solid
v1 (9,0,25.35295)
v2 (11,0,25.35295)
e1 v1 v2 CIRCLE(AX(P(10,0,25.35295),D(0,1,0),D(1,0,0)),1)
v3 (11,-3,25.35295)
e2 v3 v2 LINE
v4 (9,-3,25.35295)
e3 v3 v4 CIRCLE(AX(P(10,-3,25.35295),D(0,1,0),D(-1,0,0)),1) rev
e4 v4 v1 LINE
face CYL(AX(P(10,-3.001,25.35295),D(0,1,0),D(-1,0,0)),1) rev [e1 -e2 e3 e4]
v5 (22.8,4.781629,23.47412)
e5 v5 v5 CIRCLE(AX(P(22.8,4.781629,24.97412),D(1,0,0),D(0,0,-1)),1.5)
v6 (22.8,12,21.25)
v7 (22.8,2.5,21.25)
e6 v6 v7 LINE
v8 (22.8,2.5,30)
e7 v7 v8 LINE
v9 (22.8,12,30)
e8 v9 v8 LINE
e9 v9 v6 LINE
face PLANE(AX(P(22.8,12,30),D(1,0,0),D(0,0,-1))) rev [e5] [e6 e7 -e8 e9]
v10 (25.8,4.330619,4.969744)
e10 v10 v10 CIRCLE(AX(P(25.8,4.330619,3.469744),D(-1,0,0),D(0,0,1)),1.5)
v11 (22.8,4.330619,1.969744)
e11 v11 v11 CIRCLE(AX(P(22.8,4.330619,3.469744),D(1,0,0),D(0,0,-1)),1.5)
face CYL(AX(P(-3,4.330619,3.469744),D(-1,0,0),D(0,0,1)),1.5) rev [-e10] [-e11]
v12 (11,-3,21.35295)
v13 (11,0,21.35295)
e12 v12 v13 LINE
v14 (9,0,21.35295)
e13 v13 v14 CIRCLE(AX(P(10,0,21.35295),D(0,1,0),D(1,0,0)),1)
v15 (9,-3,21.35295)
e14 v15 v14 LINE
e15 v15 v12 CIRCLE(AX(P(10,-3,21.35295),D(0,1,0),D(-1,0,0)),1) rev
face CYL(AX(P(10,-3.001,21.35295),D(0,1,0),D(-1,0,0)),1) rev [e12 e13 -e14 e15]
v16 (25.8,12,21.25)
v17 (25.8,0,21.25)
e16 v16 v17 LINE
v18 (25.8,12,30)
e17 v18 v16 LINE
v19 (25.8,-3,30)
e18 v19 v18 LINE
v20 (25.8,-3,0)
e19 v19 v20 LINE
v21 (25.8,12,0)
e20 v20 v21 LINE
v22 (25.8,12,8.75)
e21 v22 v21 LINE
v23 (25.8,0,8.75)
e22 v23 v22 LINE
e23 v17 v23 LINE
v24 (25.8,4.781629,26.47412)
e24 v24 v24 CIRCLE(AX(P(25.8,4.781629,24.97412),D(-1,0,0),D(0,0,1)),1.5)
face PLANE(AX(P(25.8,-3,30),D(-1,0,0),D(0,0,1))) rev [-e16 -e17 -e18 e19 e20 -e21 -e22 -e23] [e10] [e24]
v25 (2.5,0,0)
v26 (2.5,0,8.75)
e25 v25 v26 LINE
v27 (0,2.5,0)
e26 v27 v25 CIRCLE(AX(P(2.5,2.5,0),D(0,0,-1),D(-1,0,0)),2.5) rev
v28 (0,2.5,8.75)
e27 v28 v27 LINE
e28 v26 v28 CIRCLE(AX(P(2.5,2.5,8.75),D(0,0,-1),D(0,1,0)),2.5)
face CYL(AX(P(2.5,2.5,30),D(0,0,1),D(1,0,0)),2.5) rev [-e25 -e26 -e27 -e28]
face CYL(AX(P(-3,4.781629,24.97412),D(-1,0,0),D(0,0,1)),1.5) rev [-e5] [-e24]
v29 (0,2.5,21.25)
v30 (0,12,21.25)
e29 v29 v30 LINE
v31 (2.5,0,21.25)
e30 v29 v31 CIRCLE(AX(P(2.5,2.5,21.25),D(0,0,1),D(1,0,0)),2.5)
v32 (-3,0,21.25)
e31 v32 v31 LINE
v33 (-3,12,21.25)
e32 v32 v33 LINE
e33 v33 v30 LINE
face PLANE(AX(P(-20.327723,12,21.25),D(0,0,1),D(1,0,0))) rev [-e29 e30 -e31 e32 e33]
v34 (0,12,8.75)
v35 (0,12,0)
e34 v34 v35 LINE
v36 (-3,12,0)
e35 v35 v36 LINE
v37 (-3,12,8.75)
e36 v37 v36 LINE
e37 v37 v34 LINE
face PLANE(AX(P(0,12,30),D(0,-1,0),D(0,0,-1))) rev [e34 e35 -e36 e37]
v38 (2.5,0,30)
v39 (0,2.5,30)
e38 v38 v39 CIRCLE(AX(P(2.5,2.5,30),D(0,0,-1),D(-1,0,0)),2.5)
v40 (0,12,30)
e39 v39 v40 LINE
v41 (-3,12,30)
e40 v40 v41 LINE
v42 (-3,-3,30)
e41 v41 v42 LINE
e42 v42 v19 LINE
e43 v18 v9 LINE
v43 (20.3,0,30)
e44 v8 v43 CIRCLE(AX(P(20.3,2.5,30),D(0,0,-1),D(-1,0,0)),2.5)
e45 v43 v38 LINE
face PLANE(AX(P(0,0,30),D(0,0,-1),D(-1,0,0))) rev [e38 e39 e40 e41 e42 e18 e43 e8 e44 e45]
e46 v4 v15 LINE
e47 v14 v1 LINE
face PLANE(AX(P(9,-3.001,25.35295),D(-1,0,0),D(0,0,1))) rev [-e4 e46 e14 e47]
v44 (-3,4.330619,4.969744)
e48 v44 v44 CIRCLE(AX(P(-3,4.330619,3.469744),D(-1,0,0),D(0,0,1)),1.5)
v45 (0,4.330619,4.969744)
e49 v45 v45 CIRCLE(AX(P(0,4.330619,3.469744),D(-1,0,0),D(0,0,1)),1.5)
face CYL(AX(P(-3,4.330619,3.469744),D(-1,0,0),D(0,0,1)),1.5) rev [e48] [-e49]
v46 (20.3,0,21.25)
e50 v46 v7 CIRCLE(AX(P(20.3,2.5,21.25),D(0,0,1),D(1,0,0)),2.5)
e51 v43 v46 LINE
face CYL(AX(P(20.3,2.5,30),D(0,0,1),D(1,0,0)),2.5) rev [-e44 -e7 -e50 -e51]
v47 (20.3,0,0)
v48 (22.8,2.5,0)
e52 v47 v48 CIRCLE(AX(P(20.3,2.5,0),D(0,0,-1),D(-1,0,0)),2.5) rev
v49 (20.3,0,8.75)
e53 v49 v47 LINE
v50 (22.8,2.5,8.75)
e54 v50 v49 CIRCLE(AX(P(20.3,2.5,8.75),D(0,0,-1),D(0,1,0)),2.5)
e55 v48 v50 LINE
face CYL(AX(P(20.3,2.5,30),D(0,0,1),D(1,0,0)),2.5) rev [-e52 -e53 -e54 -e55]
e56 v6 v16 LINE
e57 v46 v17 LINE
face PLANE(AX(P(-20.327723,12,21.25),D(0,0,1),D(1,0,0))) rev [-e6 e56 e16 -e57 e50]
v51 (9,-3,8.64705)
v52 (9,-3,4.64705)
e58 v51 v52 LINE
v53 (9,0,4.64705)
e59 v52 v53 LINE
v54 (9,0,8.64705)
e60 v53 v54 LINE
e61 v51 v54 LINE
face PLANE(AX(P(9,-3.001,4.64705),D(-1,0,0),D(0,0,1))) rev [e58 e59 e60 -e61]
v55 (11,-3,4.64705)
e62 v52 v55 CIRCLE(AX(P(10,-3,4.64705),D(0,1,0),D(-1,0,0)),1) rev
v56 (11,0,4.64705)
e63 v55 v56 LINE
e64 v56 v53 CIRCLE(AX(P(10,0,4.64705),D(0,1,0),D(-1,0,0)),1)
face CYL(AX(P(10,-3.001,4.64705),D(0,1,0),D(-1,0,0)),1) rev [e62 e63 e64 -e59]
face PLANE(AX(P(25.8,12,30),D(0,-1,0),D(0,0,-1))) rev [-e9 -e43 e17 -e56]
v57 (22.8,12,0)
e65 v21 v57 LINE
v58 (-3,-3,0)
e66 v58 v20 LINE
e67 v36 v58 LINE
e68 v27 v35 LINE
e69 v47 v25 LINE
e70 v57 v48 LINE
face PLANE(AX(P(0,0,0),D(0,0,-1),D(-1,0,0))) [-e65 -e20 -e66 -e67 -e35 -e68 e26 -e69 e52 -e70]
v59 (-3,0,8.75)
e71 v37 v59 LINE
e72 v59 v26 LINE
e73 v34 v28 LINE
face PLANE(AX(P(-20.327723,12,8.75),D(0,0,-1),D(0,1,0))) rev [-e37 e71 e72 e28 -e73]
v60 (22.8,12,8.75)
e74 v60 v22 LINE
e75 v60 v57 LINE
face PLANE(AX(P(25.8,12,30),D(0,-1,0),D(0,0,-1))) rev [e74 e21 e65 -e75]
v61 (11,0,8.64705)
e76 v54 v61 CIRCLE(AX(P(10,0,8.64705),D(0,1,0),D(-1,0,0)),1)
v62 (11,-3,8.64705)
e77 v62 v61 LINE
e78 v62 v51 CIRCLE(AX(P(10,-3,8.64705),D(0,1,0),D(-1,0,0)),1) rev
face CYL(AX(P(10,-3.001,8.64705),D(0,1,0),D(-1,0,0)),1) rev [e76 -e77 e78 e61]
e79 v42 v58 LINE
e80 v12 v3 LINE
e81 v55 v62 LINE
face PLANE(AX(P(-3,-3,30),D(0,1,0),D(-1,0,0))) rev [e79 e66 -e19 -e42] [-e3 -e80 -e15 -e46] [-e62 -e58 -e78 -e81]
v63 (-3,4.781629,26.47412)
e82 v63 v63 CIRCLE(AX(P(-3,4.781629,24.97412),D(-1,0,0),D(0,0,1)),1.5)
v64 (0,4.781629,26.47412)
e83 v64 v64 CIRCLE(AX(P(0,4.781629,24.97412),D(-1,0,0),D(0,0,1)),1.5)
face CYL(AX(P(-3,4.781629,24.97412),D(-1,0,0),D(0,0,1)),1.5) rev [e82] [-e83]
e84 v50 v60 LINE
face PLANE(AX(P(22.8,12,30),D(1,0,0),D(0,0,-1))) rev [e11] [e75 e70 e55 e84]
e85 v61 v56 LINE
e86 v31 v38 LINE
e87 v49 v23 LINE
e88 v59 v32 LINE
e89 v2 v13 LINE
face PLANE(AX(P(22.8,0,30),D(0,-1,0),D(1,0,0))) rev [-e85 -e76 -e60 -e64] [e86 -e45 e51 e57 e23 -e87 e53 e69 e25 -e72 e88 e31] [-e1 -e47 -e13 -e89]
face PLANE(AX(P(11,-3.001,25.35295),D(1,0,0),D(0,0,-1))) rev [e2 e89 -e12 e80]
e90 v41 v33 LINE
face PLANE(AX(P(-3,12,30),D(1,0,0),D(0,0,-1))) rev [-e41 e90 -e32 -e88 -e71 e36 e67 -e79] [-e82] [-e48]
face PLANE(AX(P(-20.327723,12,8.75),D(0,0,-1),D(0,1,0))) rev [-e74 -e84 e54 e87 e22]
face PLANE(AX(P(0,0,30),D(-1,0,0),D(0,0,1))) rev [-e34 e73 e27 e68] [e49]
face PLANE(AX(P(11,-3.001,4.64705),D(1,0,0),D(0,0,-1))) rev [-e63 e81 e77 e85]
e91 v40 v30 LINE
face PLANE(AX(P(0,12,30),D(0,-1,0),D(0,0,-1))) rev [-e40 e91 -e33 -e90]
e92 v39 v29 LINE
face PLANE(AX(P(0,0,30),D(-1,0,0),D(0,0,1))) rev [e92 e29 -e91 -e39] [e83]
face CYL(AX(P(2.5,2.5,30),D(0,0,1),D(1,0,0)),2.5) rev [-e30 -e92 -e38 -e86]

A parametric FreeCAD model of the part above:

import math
import FreeCAD as App
import Part
import Sketcher


def edges_at(feature, points):
    """Names of the edges that pass closest to the given points."""
    edges = feature.Shape.Edges
    near = lambda p: min(range(len(edges)), key=lambda i: edges[i].distToShape(Part.Vertex(*p))[0])
    return sorted({f"Edge{near(p) + 1}" for p in points})


def add_polygon(sketch, points):
    """Adds a closed chain of lines whose ends are joined by coincident constraints."""
    first, n = sketch.GeometryCount, len(points)
    for a, b in zip(points, points[1:] + points[:1]):
        sketch.addGeometry(Part.LineSegment(App.Vector(*a, 0), App.Vector(*b, 0)), False)
    for i in range(n):
        sketch.addConstraint(Sketcher.Constraint("Coincident", first + i, 2, first + (i + 1) % n, 1))

doc = App.newDocument("Part")
body = doc.addObject("PartDesign::Body", "Body")

sketch1 = doc.addObject("Sketcher::SketchObject", "Sketch")
body.addObject(sketch1)
sketch1.AttachmentSupport = (doc.XY_Plane, [""])
sketch1.MapMode = "FlatFace"
add_polygon(sketch1, [(0, 0), (0, 12), (-3, 12), (-3, -3), (25.8, -3), (25.8, 12), (22.8, 12), (22.8, 0)])
sketch1.addConstraint([
    Sketcher.Constraint("Vertical", 0),
    Sketcher.Constraint("Horizontal", 1),
    Sketcher.Constraint("Vertical", 2),
    Sketcher.Constraint("Horizontal", 3),
    Sketcher.Constraint("Vertical", 4),
    Sketcher.Constraint("Horizontal", 5),
    Sketcher.Constraint("Vertical", 6),
    Sketcher.Constraint("Horizontal", 7),
    Sketcher.Constraint("Coincident", 7, 2, -1, 1),
    Sketcher.Constraint("Horizontal", 1, 2, 4, 2),
    Sketcher.Constraint("Equal", 1, 5),
    Sketcher.Constraint("DistanceX", 1, 2, 1, 1, 3.0),
    Sketcher.Constraint("DistanceY", 0, 1, 0, 2, 12.0),
    Sketcher.Constraint("DistanceY", 2, 2, 2, 1, 15.0),
    Sketcher.Constraint("DistanceX", 3, 1, 3, 2, 28.8),
])
pad1 = doc.addObject("PartDesign::Pad", "Pad")
body.addObject(pad1)
pad1.Profile = sketch1
pad1.Length = 30

sketch2 = doc.addObject("Sketcher::SketchObject", "Sketch001")
body.addObject(sketch2)
sketch2.AttachmentSupport = (doc.YZ_Plane, [""])
sketch2.MapMode = "FlatFace"
sketch2.AttachmentOffset = App.Placement(App.Vector(0, 0, 25.8), App.Rotation())
add_polygon(sketch2, [(12, 21.25), (0, 21.25), (0, 8.75), (12, 8.75)])
sketch2.addConstraint([
    Sketcher.Constraint("Horizontal", 0),
    Sketcher.Constraint("Vertical", 1),
    Sketcher.Constraint("Horizontal", 2),
    Sketcher.Constraint("Vertical", 3),
    Sketcher.Constraint("PointOnObject", 0, 2, -2),
    Sketcher.Constraint("DistanceX", 0, 2, 0, 1, 12.0),
    Sketcher.Constraint("DistanceY", 1, 2, 1, 1, 12.5),
    Sketcher.Constraint("DistanceY", -1, 1, 0, 2, 21.25),
])
pocket1 = doc.addObject("PartDesign::Pocket", "Pocket")
body.addObject(pocket1)
pocket1.Profile = sketch2
pocket1.Length = 28.8

sketch3 = doc.addObject("Sketcher::SketchObject", "Sketch002")
body.addObject(sketch3)
sketch3.AttachmentSupport = (doc.XZ_Plane, [""])
sketch3.MapMode = "FlatFace"
sketch3.addGeometry([
    Part.LineSegment(App.Vector(11, 8.64705, 0), App.Vector(11, 4.64705, 0)),
    Part.ArcOfCircle(Part.Circle(App.Vector(10, 4.64705, 0), App.Vector(0, 0, 1), 1), math.radians(180), math.radians(360)),
    Part.LineSegment(App.Vector(9, 4.64705, 0), App.Vector(9, 8.64705, 0)),
    Part.ArcOfCircle(Part.Circle(App.Vector(10, 8.64705, 0), App.Vector(0, 0, 1), 1), math.radians(0), math.radians(180)),
], False)
sketch3.addConstraint([
    Sketcher.Constraint("Tangent", 0, 2, 1, 2),
    Sketcher.Constraint("Tangent", 1, 1, 2, 1),
    Sketcher.Constraint("Tangent", 2, 2, 3, 2),
    Sketcher.Constraint("Tangent", 3, 1, 0, 1),
    Sketcher.Constraint("Vertical", 0),
    Sketcher.Constraint("Vertical", 2),
    Sketcher.Constraint("Radius", 1, 1.0),
    Sketcher.Constraint("DistanceY", 0, 2, 0, 1, 4.0),
    Sketcher.Constraint("DistanceX", -1, 1, 1, 3, 10.0),
    Sketcher.Constraint("DistanceY", -1, 1, 1, 3, 4.64705),
])
pocket2 = doc.addObject("PartDesign::Pocket", "Pocket001")
body.addObject(pocket2)
pocket2.Profile = sketch3
pocket2.Type = "UpToFirst"
pocket2.Reversed = True

sketch4 = doc.addObject("Sketcher::SketchObject", "Sketch003")
body.addObject(sketch4)
sketch4.AttachmentSupport = (doc.XZ_Plane, [""])
sketch4.MapMode = "FlatFace"
sketch4.addGeometry([
    Part.LineSegment(App.Vector(11, 25.35295, 0), App.Vector(11, 21.35295, 0)),
    Part.ArcOfCircle(Part.Circle(App.Vector(10, 21.35295, 0), App.Vector(0, 0, 1), 1), math.radians(180), math.radians(360)),
    Part.LineSegment(App.Vector(9, 21.35295, 0), App.Vector(9, 25.35295, 0)),
    Part.ArcOfCircle(Part.Circle(App.Vector(10, 25.35295, 0), App.Vector(0, 0, 1), 1), math.radians(0), math.radians(180)),
], False)
sketch4.addConstraint([
    Sketcher.Constraint("Tangent", 0, 2, 1, 2),
    Sketcher.Constraint("Tangent", 1, 1, 2, 1),
    Sketcher.Constraint("Tangent", 2, 2, 3, 2),
    Sketcher.Constraint("Tangent", 3, 1, 0, 1),
    Sketcher.Constraint("Vertical", 0),
    Sketcher.Constraint("Vertical", 2),
    Sketcher.Constraint("Radius", 1, 1.0),
    Sketcher.Constraint("DistanceY", 0, 2, 0, 1, 4.0),
    Sketcher.Constraint("DistanceX", -1, 1, 1, 3, 10.0),
    Sketcher.Constraint("DistanceY", -1, 1, 1, 3, 21.35295),
])
pocket3 = doc.addObject("PartDesign::Pocket", "Pocket002")
body.addObject(pocket3)
pocket3.Profile = sketch4
pocket3.Type = "UpToFirst"
pocket3.Reversed = True

sketch5 = doc.addObject("Sketcher::SketchObject", "Sketch004")
body.addObject(sketch5)
sketch5.AttachmentSupport = (doc.YZ_Plane, [""])
sketch5.MapMode = "FlatFace"
sketch5.AttachmentOffset = App.Placement(App.Vector(0, 0, -3), App.Rotation())
sketch5.addGeometry([
    Part.Circle(App.Vector(4.330619, 3.469744, 0), App.Vector(0, 0, 1), 1.5),
    Part.Circle(App.Vector(4.781629, 24.97412, 0), App.Vector(0, 0, 1), 1.5),
], False)
sketch5.addConstraint([
    Sketcher.Constraint("Equal", 0, 1),
    Sketcher.Constraint("Diameter", 0, 3.0),
    Sketcher.Constraint("DistanceX", -1, 1, 0, 3, 4.330619),
    Sketcher.Constraint("DistanceX", -1, 1, 1, 3, 4.781629),
    Sketcher.Constraint("DistanceY", -1, 1, 1, 3, 24.97412),
    Sketcher.Constraint("DistanceY", -1, 1, 0, 3, 3.469744),
])
doc.recompute()
hole = doc.addObject("PartDesign::Hole", "Hole")
body.addObject(hole)
hole.Profile = sketch5
hole.ThreadType = "None"
hole.Diameter = 3
hole.DepthType = "ThroughAll"
hole.Reversed = True
doc.recompute()

fillet = doc.addObject("PartDesign::Fillet", "Fillet")
body.addObject(fillet)
fillet.Base = (hole, edges_at(hole, [
    (22.8, 0, 25.625),
    (0, 0, 25.625),
    (22.8, 0, 4.375),
    (0, 0, 4.375),
]))
fillet.Radius = 2.5

doc.recompute()
